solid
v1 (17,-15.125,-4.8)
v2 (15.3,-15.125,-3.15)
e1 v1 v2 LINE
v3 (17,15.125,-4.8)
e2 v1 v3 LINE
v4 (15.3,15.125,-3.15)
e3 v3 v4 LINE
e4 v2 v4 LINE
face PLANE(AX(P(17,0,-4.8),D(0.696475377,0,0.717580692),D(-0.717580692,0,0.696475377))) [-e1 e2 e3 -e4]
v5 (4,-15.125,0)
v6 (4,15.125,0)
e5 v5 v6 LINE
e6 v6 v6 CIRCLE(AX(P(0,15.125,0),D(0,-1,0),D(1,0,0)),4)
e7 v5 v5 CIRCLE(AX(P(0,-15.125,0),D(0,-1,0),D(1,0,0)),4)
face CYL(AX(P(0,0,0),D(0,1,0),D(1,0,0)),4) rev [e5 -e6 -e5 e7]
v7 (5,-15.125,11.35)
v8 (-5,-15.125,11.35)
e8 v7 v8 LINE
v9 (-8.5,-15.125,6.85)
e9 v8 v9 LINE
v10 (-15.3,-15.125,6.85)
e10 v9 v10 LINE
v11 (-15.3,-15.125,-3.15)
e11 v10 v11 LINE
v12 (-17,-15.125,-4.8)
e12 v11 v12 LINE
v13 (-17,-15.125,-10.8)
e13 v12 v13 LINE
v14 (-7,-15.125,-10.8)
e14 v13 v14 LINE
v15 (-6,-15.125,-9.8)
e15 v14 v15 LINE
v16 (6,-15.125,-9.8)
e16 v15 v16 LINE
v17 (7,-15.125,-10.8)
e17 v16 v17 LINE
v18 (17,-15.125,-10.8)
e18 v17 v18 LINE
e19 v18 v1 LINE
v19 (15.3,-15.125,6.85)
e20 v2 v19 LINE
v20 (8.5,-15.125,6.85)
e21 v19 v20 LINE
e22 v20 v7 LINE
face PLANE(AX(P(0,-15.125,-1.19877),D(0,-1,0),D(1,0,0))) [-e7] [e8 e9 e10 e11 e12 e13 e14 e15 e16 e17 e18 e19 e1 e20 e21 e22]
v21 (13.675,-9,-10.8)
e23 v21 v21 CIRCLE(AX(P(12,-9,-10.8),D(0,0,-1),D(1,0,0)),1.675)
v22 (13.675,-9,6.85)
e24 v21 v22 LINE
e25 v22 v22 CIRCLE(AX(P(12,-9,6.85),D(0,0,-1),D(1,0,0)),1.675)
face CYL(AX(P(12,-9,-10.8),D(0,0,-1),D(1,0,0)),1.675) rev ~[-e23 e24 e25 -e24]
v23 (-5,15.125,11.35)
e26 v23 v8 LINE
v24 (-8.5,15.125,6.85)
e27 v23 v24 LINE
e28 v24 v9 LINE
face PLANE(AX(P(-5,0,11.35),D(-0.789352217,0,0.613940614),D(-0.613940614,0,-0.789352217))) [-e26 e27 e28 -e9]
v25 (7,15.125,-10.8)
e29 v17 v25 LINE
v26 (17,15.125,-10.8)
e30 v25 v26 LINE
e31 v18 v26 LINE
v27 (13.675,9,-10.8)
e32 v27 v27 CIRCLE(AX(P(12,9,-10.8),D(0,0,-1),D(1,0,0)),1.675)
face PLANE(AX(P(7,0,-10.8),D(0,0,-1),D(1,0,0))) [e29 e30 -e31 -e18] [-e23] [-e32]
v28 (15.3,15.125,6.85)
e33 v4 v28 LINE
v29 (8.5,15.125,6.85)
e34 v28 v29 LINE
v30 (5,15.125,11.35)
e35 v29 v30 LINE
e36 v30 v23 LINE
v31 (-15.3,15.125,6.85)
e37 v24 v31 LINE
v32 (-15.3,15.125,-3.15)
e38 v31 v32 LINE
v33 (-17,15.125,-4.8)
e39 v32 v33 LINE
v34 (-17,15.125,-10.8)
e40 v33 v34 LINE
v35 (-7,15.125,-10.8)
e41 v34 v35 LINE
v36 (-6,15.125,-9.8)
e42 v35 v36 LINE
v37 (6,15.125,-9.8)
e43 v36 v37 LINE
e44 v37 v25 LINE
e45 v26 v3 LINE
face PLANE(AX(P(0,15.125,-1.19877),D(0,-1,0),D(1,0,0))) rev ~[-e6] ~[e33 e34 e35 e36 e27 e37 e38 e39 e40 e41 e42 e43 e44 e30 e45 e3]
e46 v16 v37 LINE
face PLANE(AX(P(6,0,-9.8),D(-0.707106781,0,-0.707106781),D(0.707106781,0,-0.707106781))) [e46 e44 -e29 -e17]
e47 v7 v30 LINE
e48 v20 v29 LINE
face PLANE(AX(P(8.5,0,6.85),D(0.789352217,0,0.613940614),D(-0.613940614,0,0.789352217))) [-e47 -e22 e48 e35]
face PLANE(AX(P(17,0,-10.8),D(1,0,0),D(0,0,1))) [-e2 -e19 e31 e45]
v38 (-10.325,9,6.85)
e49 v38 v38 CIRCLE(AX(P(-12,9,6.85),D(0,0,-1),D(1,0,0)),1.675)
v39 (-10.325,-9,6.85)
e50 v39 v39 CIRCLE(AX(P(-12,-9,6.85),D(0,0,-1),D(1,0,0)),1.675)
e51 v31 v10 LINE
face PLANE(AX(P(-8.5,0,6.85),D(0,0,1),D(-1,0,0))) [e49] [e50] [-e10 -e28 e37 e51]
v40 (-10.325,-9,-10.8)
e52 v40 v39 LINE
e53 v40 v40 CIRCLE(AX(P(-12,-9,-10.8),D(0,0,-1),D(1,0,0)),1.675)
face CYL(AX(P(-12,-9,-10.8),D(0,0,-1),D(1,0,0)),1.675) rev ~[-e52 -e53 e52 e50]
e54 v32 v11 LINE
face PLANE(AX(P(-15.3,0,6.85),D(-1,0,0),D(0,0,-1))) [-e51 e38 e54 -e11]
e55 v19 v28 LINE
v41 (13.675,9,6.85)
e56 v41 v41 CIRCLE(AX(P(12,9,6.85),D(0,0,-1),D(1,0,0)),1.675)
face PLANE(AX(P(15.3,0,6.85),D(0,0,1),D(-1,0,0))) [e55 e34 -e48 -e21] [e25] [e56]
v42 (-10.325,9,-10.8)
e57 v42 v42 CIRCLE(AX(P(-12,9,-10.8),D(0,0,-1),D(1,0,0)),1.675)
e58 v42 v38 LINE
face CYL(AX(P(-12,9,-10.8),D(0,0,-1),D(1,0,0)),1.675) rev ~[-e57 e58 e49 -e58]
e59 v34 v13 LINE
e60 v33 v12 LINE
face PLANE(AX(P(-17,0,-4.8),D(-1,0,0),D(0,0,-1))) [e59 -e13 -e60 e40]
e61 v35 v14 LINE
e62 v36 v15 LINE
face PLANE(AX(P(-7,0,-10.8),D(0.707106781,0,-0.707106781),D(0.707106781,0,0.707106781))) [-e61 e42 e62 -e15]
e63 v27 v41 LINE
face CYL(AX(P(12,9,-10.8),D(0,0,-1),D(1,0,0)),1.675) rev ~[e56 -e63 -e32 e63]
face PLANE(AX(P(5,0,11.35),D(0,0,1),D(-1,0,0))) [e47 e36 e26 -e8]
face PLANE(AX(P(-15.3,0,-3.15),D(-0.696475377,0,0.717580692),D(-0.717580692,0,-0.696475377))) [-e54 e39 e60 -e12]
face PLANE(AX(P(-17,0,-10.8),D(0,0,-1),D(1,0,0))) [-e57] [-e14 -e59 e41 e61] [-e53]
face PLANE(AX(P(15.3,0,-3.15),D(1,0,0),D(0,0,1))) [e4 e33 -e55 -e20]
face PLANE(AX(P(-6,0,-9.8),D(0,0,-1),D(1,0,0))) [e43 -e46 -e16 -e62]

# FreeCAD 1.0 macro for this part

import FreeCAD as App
import Part
import Sketcher

V = App.Vector


def add_polygon(sketch, points):
    """Adds a closed chain of lines whose ends are joined by coincident constraints."""
    first, n = sketch.GeometryCount, len(points)
    for a, b in zip(points, points[1:] + points[:1]):
        sketch.addGeometry(Part.LineSegment(App.Vector(*a, 0), App.Vector(*b, 0)), False)
    for i in range(n):
        sketch.addConstraint(Sketcher.Constraint("Coincident", first + i, 2, first + (i + 1) % n, 1))

doc = App.newDocument("Part")
body = doc.addObject("PartDesign::Body", "Body")

sketch1 = body.newObject("Sketcher::SketchObject", "Sketch")
sketch1.AttachmentSupport = (doc.getObject("XZ_Plane"), [""])
sketch1.MapMode = "FlatFace"
add_polygon(sketch1, [(5, 11.3), (-5, 11.3), (-8.5, 6.8), (-15.3, 6.8), (-15.3, -3.1), (-17, -4.8), (-17, -10.8), (-7, -10.8), (-6, -9.8), (6, -9.8), (7, -10.8), (17, -10.8), (17, -4.8), (15.3, -3.1), (15.3, 6.8), (8.5, 6.8)])
sketch1.addGeometry(Part.Circle(V(0, 0, 0), V(0, 0, 1), 4), False)
sketch1.addConstraint(Sketcher.Constraint("Horizontal", 0))
sketch1.addConstraint(Sketcher.Constraint("Horizontal", 2))
sketch1.addConstraint(Sketcher.Constraint("Vertical", 3))
sketch1.addConstraint(Sketcher.Constraint("Vertical", 5))
sketch1.addConstraint(Sketcher.Constraint("Horizontal", 6))
sketch1.addConstraint(Sketcher.Constraint("Horizontal", 8))
sketch1.addConstraint(Sketcher.Constraint("Horizontal", 10))
sketch1.addConstraint(Sketcher.Constraint("Vertical", 11))
sketch1.addConstraint(Sketcher.Constraint("Vertical", 13))
sketch1.addConstraint(Sketcher.Constraint("Horizontal", 14))
sketch1.addConstraint(Sketcher.Constraint("Coincident", 16, 3, -1, 1))
sketch1.addConstraint(Sketcher.Constraint("Symmetric", 6, 2, 9, 2, -2))
sketch1.addConstraint(Sketcher.Constraint("Symmetric", 4, 2, 11, 2, -2))
sketch1.addConstraint(Sketcher.Constraint("Symmetric", 3, 2, 12, 2, -2))
sketch1.addConstraint(Sketcher.Constraint("Symmetric", 1, 2, 14, 2, -2))
sketch1.addConstraint(Sketcher.Constraint("Perpendicular", 7, 9))
sketch1.addConstraint(Sketcher.Constraint("Equal", 0, 6))
sketch1.addConstraint(Sketcher.Constraint("Equal", 10, 3))
sketch1.addConstraint(Sketcher.Constraint("Equal", 7, 9))
sketch1.addConstraint(Sketcher.Constraint("Equal", 1, 15))
sketch1.addConstraint(Sketcher.Constraint("Diameter", 16, 8.0))
sketch1.addConstraint(Sketcher.Constraint("DistanceX", 0, 2, 0, 1, 10.0))
sketch1.addConstraint(Sketcher.Constraint("DistanceX", 8, 1, 8, 2, 12.0))
sketch1.addConstraint(Sketcher.Constraint("DistanceY", 5, 2, 5, 1, 6.0))
sketch1.addConstraint(Sketcher.Constraint("DistanceX", 2, 2, 2, 1, 6.8))
sketch1.addConstraint(Sketcher.Constraint("DistanceX", 4, 2, -1, 1, 17.0))
sketch1.addConstraint(Sketcher.Constraint("DistanceX", 1, 2, -1, 1, 8.5))
sketch1.addConstraint(Sketcher.Constraint("DistanceY", 4, 2, -1, 1, 4.8))
sketch1.addConstraint(Sketcher.Constraint("DistanceY", 1, 2, 0, 2, 4.5))
sketch1.addConstraint(Sketcher.Constraint("DistanceY", -1, 1, 0, 2, 11.35))
pad1 = body.newObject("PartDesign::Pad", "Pad")
pad1.Profile = sketch1
pad1.Length = 30.25
pad1.Midplane = True

sketch2 = body.newObject("Sketcher::SketchObject", "Sketch001")
sketch2.AttachmentSupport = (doc.getObject("XY_Plane"), [""])
sketch2.MapMode = "FlatFace"
sketch2.AttachmentOffset = App.Placement(V(0, 0, -10.8), App.Rotation())
sketch2.addGeometry(Part.Circle(V(-12, -9, 0), V(0, 0, 1), 1.7), False)
sketch2.addGeometry(Part.Circle(V(12, -9, 0), V(0, 0, 1), 1.7), False)
sketch2.addGeometry(Part.Circle(V(-12, 9, 0), V(0, 0, 1), 1.7), False)
sketch2.addGeometry(Part.Circle(V(12, 9, 0), V(0, 0, 1), 1.7), False)
sketch2.addConstraint(Sketcher.Constraint("Equal", 0, 1))
sketch2.addConstraint(Sketcher.Constraint("Equal", 1, 2))
sketch2.addConstraint(Sketcher.Constraint("Equal", 2, 3))
sketch2.addConstraint(Sketcher.Constraint("Symmetric", 1, 3, 2, 3, -1, 1))
sketch2.addConstraint(Sketcher.Constraint("Symmetric", 0, 3, 3, 3, -1, 1))
sketch2.addConstraint(Sketcher.Constraint("Symmetric", 0, 3, 1, 3, -2))
sketch2.addConstraint(Sketcher.Constraint("Diameter", 0, 3.35))
sketch2.addConstraint(Sketcher.Constraint("DistanceX", 0, 3, -1, 1, 12.0))
sketch2.addConstraint(Sketcher.Constraint("DistanceY", 0, 3, -1, 1, 9.0))
pocket1 = body.newObject("PartDesign::Pocket", "Pocket")
pocket1.Profile = sketch2
pocket1.Type = "ThroughAll"
pocket1.Reversed = True

doc.recompute()
